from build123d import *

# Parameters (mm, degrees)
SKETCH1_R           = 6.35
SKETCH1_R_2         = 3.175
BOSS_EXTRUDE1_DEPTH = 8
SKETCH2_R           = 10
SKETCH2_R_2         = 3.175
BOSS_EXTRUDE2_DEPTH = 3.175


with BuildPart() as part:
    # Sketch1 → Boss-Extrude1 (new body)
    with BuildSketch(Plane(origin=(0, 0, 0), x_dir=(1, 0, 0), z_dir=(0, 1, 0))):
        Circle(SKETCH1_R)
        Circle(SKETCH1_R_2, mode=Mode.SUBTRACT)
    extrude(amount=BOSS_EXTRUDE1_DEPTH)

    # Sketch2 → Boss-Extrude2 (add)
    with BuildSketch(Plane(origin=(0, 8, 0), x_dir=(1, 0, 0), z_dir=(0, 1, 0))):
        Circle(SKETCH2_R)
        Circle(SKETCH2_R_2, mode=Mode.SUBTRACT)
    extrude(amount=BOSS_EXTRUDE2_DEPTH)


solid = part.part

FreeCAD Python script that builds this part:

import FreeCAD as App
import Part
import Sketcher
Q = App.Units.Quantity

doc = App.newDocument("Part")
body = doc.addObject("PartDesign::Body", "Body")

# Sketch on XZ plane
sketch1 = doc.addObject("Sketcher::SketchObject", "Sketch")
body.addObject(sketch1)
sketch1.AttachmentSupport = (doc.XZ_Plane, [""])
sketch1.MapMode = "FlatFace"
sketch1.addGeometry([
    Part.Circle(App.Vector(0, 0, 0), App.Vector(0, 0, 1), 6.3),
    Part.Circle(App.Vector(0, 0, 0), App.Vector(0, 0, 1), 3.2),
], False)
sketch1.addConstraint([
    Sketcher.Constraint("Coincident", 0, 3, -1, 1),
    Sketcher.Constraint("Coincident", 1, 3, -1, 1),
    Sketcher.Constraint("Diameter", 0, Q("0.5 in")),
    Sketcher.Constraint("Diameter", 1, Q("0.25 in")),
])
pad1 = doc.addObject("PartDesign::Pad", "Pad")
body.addObject(pad1)
pad1.Profile = sketch1
pad1.Length = 8
pad1.Reversed = True

# Sketch on XZ plane
sketch2 = doc.addObject("Sketcher::SketchObject", "Sketch001")
body.addObject(sketch2)
sketch2.AttachmentSupport = (doc.XZ_Plane, [""])
sketch2.MapMode = "FlatFace"
sketch2.AttachmentOffset = App.Placement(App.Vector(0, 0, -8), App.Rotation())
sketch2.addGeometry([
    Part.Circle(App.Vector(0, 0, 0), App.Vector(0, 0, 1), 10),
    Part.Circle(App.Vector(0, 0, 0), App.Vector(0, 0, 1), 3.2),
], False)
sketch2.addConstraint([
    Sketcher.Constraint("Coincident", 0, 3, -1, 1),
    Sketcher.Constraint("Coincident", 1, 3, -1, 1),
    Sketcher.Constraint("Diameter", 1, Q("0.25 in")),
    Sketcher.Constraint("Diameter", 0, 20.0),
])
pad2 = doc.addObject("PartDesign::Pad", "Pad001")
body.addObject(pad2)
pad2.Profile = sketch2
pad2.Length = Q("0.125 in")
pad2.Reversed = True

doc.recompute()
